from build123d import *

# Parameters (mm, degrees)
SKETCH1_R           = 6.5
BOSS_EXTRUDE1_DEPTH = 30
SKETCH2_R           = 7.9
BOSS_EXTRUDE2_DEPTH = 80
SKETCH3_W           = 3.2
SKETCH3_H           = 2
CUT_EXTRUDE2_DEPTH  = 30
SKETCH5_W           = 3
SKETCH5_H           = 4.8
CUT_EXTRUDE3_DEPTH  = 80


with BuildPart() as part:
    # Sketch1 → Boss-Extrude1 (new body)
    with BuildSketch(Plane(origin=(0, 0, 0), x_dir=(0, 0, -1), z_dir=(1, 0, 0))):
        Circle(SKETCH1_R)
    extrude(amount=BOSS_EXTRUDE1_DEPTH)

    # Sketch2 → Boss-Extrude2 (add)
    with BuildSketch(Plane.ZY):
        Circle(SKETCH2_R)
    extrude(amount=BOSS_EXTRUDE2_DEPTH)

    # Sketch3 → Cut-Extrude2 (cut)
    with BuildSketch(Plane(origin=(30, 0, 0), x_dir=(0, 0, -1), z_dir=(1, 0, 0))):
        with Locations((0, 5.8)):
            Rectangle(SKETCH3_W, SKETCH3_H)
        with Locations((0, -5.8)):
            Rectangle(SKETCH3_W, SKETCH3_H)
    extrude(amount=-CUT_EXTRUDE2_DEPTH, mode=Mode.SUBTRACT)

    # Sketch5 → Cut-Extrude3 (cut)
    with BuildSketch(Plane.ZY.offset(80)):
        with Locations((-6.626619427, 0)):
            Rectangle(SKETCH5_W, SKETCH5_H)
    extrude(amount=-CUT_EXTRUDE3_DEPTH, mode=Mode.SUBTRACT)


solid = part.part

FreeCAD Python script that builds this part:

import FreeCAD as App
import Part
import Sketcher


def add_polygon(sketch, points):
    """Adds a closed chain of lines whose ends are joined by coincident constraints."""
    first, n = sketch.GeometryCount, len(points)
    for a, b in zip(points, points[1:] + points[:1]):
        sketch.addGeometry(Part.LineSegment(App.Vector(*a, 0), App.Vector(*b, 0)), False)
    for i in range(n):
        sketch.addConstraint(Sketcher.Constraint("Coincident", first + i, 2, first + (i + 1) % n, 1))

doc = App.newDocument("Part")
body = doc.addObject("PartDesign::Body", "Body")

# Sketch on YZ plane
sketch1 = body.newObject("Sketcher::SketchObject", "Sketch")
sketch1.AttachmentSupport = (doc.getObject("YZ_Plane"), [""])
sketch1.MapMode = "FlatFace"
sketch1.addGeometry(Part.Circle(App.Vector(0, 0, 0), App.Vector(0, 0, 1), 6), False)
sketch1.addConstraint([
    Sketcher.Constraint("Coincident", 0, 3, -1, 1),
    Sketcher.Constraint("Diameter", 0, 13.0),
])
pad1 = body.newObject("PartDesign::Pad", "Pad")
pad1.Profile = sketch1
pad1.Length = 30

# Sketch on YZ plane
sketch2 = body.newObject("Sketcher::SketchObject", "Sketch001")
sketch2.AttachmentSupport = (doc.getObject("YZ_Plane"), [""])
sketch2.MapMode = "FlatFace"
sketch2.addGeometry(Part.Circle(App.Vector(0, 0, 0), App.Vector(0, 0, 1), 8), False)
sketch2.addConstraint([
    Sketcher.Constraint("Coincident", 0, 3, -1, 1),
    Sketcher.Constraint("Diameter", 0, 15.8),
])
pad2 = body.newObject("PartDesign::Pad", "Pad001")
pad2.Profile = sketch2
pad2.Length = 80
pad2.Reversed = True

# Sketch on YZ plane
sketch3 = body.newObject("Sketcher::SketchObject", "Sketch002")
sketch3.AttachmentSupport = (doc.getObject("YZ_Plane"), [""])
sketch3.MapMode = "FlatFace"
sketch3.AttachmentOffset = App.Placement(App.Vector(0, 0, 30), App.Rotation())
add_polygon(sketch3, [(6.8, 1.6), (4.8, 1.6), (4.8, -1.6), (6.8, -1.6)])  # lines 0-3
add_polygon(sketch3, [(-4.8, 1.6), (-6.8, 1.6), (-6.8, -1.6), (-4.8, -1.6)])  # lines 4-7
sketch3.addConstraint([
    Sketcher.Constraint("Horizontal", 0),
    Sketcher.Constraint("Vertical", 1),
    Sketcher.Constraint("Horizontal", 2),
    Sketcher.Constraint("Vertical", 3),
    Sketcher.Constraint("Horizontal", 4),
    Sketcher.Constraint("Vertical", 5),
    Sketcher.Constraint("Horizontal", 6),
    Sketcher.Constraint("Vertical", 7),
    Sketcher.Constraint("Symmetric", 2, 2, 4, 2, -1, 1),
    Sketcher.Constraint("Symmetric", 0, 2, 6, 2, -1, 1),
    Sketcher.Constraint("Horizontal", 3, 2, 4, 2),
    Sketcher.Constraint("DistanceX", 0, 2, 0, 1, 2.0),
    Sketcher.Constraint("DistanceY", 1, 2, 1, 1, 3.2),
    Sketcher.Constraint("DistanceX", -1, 1, 0, 2, 4.8),
])
pocket1 = body.newObject("PartDesign::Pocket", "Pocket")
pocket1.Profile = sketch3
pocket1.Length = 30

# Sketch on YZ plane
sketch4 = body.newObject("Sketcher::SketchObject", "Sketch003")
sketch4.AttachmentSupport = (doc.getObject("YZ_Plane"), [""])
sketch4.MapMode = "FlatFace"
sketch4.AttachmentOffset = App.Placement(App.Vector(0, 0, -80), App.Rotation())
add_polygon(sketch4, [(2.4, -8.1), (-2.4, -8.1), (-2.4, -5.1), (2.4, -5.1)])  # lines 0-3
sketch4.addConstraint([
    Sketcher.Constraint("Horizontal", 0),
    Sketcher.Constraint("Vertical", 1),
    Sketcher.Constraint("Horizontal", 2),
    Sketcher.Constraint("Vertical", 3),
    Sketcher.Constraint("DistanceY", 1, 1, 1, 2, 3.0),
    Sketcher.Constraint("DistanceX", 0, 2, 0, 1, 4.8),
    Sketcher.Constraint("DistanceX", 0, 2, -1, 1, 2.4),
    Sketcher.Constraint("DistanceY", 0, 2, -1, 1, 8.126619),
])
pocket2 = body.newObject("PartDesign::Pocket", "Pocket001")
pocket2.Profile = sketch4
pocket2.Length = 80
pocket2.Reversed = True

doc.recompute()
